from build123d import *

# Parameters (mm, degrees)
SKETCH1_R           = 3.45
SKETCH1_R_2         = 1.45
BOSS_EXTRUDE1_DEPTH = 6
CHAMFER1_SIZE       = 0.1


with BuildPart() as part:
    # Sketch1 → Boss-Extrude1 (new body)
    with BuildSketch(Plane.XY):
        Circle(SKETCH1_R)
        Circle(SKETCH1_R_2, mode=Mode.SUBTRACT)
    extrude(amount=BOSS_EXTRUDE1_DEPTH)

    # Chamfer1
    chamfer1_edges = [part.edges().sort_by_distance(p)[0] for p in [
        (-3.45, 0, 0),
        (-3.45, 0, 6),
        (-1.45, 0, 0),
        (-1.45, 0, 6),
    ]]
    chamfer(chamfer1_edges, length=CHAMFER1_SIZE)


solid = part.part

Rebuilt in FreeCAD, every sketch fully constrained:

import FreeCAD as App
import Part
import Sketcher


def edges_at(feature, points):
    """Names of the edges that pass closest to the given points."""
    edges = feature.Shape.Edges
    near = lambda p: min(range(len(edges)), key=lambda i: edges[i].distToShape(Part.Vertex(*p))[0])
    return sorted({f"Edge{near(p) + 1}" for p in points})

doc = App.newDocument("Part")
body = doc.addObject("PartDesign::Body", "Body")

sketch1 = doc.addObject("Sketcher::SketchObject", "Sketch")
body.addObject(sketch1)
sketch1.AttachmentSupport = (doc.XY_Plane, [""])
sketch1.MapMode = "FlatFace"
sketch1.addGeometry([
    Part.Circle(App.Vector(0, 0, 0), App.Vector(0, 0, 1), 3.45),
    Part.Circle(App.Vector(0, 0, 0), App.Vector(0, 0, 1), 1.45),
], False)
sketch1.addConstraint([
    Sketcher.Constraint("Coincident", 0, 3, -1, 1),
    Sketcher.Constraint("Coincident", 1, 3, -1, 1),
    Sketcher.Constraint("Diameter", 0, 6.9),
    Sketcher.Constraint("Diameter", 1, 2.9),
])
pad1 = doc.addObject("PartDesign::Pad", "Pad")
body.addObject(pad1)
pad1.Profile = sketch1
pad1.Length = 6
doc.recompute()

chamfer = doc.addObject("PartDesign::Chamfer", "Chamfer")
body.addObject(chamfer)
chamfer.Base = (pad1, edges_at(pad1, [
    (-3.45, 0, 0),
    (-3.45, 0, 6),
    (-1.45, 0, 0),
    (-1.45, 0, 6),
]))
chamfer.Size = 0.1

doc.recompute()
